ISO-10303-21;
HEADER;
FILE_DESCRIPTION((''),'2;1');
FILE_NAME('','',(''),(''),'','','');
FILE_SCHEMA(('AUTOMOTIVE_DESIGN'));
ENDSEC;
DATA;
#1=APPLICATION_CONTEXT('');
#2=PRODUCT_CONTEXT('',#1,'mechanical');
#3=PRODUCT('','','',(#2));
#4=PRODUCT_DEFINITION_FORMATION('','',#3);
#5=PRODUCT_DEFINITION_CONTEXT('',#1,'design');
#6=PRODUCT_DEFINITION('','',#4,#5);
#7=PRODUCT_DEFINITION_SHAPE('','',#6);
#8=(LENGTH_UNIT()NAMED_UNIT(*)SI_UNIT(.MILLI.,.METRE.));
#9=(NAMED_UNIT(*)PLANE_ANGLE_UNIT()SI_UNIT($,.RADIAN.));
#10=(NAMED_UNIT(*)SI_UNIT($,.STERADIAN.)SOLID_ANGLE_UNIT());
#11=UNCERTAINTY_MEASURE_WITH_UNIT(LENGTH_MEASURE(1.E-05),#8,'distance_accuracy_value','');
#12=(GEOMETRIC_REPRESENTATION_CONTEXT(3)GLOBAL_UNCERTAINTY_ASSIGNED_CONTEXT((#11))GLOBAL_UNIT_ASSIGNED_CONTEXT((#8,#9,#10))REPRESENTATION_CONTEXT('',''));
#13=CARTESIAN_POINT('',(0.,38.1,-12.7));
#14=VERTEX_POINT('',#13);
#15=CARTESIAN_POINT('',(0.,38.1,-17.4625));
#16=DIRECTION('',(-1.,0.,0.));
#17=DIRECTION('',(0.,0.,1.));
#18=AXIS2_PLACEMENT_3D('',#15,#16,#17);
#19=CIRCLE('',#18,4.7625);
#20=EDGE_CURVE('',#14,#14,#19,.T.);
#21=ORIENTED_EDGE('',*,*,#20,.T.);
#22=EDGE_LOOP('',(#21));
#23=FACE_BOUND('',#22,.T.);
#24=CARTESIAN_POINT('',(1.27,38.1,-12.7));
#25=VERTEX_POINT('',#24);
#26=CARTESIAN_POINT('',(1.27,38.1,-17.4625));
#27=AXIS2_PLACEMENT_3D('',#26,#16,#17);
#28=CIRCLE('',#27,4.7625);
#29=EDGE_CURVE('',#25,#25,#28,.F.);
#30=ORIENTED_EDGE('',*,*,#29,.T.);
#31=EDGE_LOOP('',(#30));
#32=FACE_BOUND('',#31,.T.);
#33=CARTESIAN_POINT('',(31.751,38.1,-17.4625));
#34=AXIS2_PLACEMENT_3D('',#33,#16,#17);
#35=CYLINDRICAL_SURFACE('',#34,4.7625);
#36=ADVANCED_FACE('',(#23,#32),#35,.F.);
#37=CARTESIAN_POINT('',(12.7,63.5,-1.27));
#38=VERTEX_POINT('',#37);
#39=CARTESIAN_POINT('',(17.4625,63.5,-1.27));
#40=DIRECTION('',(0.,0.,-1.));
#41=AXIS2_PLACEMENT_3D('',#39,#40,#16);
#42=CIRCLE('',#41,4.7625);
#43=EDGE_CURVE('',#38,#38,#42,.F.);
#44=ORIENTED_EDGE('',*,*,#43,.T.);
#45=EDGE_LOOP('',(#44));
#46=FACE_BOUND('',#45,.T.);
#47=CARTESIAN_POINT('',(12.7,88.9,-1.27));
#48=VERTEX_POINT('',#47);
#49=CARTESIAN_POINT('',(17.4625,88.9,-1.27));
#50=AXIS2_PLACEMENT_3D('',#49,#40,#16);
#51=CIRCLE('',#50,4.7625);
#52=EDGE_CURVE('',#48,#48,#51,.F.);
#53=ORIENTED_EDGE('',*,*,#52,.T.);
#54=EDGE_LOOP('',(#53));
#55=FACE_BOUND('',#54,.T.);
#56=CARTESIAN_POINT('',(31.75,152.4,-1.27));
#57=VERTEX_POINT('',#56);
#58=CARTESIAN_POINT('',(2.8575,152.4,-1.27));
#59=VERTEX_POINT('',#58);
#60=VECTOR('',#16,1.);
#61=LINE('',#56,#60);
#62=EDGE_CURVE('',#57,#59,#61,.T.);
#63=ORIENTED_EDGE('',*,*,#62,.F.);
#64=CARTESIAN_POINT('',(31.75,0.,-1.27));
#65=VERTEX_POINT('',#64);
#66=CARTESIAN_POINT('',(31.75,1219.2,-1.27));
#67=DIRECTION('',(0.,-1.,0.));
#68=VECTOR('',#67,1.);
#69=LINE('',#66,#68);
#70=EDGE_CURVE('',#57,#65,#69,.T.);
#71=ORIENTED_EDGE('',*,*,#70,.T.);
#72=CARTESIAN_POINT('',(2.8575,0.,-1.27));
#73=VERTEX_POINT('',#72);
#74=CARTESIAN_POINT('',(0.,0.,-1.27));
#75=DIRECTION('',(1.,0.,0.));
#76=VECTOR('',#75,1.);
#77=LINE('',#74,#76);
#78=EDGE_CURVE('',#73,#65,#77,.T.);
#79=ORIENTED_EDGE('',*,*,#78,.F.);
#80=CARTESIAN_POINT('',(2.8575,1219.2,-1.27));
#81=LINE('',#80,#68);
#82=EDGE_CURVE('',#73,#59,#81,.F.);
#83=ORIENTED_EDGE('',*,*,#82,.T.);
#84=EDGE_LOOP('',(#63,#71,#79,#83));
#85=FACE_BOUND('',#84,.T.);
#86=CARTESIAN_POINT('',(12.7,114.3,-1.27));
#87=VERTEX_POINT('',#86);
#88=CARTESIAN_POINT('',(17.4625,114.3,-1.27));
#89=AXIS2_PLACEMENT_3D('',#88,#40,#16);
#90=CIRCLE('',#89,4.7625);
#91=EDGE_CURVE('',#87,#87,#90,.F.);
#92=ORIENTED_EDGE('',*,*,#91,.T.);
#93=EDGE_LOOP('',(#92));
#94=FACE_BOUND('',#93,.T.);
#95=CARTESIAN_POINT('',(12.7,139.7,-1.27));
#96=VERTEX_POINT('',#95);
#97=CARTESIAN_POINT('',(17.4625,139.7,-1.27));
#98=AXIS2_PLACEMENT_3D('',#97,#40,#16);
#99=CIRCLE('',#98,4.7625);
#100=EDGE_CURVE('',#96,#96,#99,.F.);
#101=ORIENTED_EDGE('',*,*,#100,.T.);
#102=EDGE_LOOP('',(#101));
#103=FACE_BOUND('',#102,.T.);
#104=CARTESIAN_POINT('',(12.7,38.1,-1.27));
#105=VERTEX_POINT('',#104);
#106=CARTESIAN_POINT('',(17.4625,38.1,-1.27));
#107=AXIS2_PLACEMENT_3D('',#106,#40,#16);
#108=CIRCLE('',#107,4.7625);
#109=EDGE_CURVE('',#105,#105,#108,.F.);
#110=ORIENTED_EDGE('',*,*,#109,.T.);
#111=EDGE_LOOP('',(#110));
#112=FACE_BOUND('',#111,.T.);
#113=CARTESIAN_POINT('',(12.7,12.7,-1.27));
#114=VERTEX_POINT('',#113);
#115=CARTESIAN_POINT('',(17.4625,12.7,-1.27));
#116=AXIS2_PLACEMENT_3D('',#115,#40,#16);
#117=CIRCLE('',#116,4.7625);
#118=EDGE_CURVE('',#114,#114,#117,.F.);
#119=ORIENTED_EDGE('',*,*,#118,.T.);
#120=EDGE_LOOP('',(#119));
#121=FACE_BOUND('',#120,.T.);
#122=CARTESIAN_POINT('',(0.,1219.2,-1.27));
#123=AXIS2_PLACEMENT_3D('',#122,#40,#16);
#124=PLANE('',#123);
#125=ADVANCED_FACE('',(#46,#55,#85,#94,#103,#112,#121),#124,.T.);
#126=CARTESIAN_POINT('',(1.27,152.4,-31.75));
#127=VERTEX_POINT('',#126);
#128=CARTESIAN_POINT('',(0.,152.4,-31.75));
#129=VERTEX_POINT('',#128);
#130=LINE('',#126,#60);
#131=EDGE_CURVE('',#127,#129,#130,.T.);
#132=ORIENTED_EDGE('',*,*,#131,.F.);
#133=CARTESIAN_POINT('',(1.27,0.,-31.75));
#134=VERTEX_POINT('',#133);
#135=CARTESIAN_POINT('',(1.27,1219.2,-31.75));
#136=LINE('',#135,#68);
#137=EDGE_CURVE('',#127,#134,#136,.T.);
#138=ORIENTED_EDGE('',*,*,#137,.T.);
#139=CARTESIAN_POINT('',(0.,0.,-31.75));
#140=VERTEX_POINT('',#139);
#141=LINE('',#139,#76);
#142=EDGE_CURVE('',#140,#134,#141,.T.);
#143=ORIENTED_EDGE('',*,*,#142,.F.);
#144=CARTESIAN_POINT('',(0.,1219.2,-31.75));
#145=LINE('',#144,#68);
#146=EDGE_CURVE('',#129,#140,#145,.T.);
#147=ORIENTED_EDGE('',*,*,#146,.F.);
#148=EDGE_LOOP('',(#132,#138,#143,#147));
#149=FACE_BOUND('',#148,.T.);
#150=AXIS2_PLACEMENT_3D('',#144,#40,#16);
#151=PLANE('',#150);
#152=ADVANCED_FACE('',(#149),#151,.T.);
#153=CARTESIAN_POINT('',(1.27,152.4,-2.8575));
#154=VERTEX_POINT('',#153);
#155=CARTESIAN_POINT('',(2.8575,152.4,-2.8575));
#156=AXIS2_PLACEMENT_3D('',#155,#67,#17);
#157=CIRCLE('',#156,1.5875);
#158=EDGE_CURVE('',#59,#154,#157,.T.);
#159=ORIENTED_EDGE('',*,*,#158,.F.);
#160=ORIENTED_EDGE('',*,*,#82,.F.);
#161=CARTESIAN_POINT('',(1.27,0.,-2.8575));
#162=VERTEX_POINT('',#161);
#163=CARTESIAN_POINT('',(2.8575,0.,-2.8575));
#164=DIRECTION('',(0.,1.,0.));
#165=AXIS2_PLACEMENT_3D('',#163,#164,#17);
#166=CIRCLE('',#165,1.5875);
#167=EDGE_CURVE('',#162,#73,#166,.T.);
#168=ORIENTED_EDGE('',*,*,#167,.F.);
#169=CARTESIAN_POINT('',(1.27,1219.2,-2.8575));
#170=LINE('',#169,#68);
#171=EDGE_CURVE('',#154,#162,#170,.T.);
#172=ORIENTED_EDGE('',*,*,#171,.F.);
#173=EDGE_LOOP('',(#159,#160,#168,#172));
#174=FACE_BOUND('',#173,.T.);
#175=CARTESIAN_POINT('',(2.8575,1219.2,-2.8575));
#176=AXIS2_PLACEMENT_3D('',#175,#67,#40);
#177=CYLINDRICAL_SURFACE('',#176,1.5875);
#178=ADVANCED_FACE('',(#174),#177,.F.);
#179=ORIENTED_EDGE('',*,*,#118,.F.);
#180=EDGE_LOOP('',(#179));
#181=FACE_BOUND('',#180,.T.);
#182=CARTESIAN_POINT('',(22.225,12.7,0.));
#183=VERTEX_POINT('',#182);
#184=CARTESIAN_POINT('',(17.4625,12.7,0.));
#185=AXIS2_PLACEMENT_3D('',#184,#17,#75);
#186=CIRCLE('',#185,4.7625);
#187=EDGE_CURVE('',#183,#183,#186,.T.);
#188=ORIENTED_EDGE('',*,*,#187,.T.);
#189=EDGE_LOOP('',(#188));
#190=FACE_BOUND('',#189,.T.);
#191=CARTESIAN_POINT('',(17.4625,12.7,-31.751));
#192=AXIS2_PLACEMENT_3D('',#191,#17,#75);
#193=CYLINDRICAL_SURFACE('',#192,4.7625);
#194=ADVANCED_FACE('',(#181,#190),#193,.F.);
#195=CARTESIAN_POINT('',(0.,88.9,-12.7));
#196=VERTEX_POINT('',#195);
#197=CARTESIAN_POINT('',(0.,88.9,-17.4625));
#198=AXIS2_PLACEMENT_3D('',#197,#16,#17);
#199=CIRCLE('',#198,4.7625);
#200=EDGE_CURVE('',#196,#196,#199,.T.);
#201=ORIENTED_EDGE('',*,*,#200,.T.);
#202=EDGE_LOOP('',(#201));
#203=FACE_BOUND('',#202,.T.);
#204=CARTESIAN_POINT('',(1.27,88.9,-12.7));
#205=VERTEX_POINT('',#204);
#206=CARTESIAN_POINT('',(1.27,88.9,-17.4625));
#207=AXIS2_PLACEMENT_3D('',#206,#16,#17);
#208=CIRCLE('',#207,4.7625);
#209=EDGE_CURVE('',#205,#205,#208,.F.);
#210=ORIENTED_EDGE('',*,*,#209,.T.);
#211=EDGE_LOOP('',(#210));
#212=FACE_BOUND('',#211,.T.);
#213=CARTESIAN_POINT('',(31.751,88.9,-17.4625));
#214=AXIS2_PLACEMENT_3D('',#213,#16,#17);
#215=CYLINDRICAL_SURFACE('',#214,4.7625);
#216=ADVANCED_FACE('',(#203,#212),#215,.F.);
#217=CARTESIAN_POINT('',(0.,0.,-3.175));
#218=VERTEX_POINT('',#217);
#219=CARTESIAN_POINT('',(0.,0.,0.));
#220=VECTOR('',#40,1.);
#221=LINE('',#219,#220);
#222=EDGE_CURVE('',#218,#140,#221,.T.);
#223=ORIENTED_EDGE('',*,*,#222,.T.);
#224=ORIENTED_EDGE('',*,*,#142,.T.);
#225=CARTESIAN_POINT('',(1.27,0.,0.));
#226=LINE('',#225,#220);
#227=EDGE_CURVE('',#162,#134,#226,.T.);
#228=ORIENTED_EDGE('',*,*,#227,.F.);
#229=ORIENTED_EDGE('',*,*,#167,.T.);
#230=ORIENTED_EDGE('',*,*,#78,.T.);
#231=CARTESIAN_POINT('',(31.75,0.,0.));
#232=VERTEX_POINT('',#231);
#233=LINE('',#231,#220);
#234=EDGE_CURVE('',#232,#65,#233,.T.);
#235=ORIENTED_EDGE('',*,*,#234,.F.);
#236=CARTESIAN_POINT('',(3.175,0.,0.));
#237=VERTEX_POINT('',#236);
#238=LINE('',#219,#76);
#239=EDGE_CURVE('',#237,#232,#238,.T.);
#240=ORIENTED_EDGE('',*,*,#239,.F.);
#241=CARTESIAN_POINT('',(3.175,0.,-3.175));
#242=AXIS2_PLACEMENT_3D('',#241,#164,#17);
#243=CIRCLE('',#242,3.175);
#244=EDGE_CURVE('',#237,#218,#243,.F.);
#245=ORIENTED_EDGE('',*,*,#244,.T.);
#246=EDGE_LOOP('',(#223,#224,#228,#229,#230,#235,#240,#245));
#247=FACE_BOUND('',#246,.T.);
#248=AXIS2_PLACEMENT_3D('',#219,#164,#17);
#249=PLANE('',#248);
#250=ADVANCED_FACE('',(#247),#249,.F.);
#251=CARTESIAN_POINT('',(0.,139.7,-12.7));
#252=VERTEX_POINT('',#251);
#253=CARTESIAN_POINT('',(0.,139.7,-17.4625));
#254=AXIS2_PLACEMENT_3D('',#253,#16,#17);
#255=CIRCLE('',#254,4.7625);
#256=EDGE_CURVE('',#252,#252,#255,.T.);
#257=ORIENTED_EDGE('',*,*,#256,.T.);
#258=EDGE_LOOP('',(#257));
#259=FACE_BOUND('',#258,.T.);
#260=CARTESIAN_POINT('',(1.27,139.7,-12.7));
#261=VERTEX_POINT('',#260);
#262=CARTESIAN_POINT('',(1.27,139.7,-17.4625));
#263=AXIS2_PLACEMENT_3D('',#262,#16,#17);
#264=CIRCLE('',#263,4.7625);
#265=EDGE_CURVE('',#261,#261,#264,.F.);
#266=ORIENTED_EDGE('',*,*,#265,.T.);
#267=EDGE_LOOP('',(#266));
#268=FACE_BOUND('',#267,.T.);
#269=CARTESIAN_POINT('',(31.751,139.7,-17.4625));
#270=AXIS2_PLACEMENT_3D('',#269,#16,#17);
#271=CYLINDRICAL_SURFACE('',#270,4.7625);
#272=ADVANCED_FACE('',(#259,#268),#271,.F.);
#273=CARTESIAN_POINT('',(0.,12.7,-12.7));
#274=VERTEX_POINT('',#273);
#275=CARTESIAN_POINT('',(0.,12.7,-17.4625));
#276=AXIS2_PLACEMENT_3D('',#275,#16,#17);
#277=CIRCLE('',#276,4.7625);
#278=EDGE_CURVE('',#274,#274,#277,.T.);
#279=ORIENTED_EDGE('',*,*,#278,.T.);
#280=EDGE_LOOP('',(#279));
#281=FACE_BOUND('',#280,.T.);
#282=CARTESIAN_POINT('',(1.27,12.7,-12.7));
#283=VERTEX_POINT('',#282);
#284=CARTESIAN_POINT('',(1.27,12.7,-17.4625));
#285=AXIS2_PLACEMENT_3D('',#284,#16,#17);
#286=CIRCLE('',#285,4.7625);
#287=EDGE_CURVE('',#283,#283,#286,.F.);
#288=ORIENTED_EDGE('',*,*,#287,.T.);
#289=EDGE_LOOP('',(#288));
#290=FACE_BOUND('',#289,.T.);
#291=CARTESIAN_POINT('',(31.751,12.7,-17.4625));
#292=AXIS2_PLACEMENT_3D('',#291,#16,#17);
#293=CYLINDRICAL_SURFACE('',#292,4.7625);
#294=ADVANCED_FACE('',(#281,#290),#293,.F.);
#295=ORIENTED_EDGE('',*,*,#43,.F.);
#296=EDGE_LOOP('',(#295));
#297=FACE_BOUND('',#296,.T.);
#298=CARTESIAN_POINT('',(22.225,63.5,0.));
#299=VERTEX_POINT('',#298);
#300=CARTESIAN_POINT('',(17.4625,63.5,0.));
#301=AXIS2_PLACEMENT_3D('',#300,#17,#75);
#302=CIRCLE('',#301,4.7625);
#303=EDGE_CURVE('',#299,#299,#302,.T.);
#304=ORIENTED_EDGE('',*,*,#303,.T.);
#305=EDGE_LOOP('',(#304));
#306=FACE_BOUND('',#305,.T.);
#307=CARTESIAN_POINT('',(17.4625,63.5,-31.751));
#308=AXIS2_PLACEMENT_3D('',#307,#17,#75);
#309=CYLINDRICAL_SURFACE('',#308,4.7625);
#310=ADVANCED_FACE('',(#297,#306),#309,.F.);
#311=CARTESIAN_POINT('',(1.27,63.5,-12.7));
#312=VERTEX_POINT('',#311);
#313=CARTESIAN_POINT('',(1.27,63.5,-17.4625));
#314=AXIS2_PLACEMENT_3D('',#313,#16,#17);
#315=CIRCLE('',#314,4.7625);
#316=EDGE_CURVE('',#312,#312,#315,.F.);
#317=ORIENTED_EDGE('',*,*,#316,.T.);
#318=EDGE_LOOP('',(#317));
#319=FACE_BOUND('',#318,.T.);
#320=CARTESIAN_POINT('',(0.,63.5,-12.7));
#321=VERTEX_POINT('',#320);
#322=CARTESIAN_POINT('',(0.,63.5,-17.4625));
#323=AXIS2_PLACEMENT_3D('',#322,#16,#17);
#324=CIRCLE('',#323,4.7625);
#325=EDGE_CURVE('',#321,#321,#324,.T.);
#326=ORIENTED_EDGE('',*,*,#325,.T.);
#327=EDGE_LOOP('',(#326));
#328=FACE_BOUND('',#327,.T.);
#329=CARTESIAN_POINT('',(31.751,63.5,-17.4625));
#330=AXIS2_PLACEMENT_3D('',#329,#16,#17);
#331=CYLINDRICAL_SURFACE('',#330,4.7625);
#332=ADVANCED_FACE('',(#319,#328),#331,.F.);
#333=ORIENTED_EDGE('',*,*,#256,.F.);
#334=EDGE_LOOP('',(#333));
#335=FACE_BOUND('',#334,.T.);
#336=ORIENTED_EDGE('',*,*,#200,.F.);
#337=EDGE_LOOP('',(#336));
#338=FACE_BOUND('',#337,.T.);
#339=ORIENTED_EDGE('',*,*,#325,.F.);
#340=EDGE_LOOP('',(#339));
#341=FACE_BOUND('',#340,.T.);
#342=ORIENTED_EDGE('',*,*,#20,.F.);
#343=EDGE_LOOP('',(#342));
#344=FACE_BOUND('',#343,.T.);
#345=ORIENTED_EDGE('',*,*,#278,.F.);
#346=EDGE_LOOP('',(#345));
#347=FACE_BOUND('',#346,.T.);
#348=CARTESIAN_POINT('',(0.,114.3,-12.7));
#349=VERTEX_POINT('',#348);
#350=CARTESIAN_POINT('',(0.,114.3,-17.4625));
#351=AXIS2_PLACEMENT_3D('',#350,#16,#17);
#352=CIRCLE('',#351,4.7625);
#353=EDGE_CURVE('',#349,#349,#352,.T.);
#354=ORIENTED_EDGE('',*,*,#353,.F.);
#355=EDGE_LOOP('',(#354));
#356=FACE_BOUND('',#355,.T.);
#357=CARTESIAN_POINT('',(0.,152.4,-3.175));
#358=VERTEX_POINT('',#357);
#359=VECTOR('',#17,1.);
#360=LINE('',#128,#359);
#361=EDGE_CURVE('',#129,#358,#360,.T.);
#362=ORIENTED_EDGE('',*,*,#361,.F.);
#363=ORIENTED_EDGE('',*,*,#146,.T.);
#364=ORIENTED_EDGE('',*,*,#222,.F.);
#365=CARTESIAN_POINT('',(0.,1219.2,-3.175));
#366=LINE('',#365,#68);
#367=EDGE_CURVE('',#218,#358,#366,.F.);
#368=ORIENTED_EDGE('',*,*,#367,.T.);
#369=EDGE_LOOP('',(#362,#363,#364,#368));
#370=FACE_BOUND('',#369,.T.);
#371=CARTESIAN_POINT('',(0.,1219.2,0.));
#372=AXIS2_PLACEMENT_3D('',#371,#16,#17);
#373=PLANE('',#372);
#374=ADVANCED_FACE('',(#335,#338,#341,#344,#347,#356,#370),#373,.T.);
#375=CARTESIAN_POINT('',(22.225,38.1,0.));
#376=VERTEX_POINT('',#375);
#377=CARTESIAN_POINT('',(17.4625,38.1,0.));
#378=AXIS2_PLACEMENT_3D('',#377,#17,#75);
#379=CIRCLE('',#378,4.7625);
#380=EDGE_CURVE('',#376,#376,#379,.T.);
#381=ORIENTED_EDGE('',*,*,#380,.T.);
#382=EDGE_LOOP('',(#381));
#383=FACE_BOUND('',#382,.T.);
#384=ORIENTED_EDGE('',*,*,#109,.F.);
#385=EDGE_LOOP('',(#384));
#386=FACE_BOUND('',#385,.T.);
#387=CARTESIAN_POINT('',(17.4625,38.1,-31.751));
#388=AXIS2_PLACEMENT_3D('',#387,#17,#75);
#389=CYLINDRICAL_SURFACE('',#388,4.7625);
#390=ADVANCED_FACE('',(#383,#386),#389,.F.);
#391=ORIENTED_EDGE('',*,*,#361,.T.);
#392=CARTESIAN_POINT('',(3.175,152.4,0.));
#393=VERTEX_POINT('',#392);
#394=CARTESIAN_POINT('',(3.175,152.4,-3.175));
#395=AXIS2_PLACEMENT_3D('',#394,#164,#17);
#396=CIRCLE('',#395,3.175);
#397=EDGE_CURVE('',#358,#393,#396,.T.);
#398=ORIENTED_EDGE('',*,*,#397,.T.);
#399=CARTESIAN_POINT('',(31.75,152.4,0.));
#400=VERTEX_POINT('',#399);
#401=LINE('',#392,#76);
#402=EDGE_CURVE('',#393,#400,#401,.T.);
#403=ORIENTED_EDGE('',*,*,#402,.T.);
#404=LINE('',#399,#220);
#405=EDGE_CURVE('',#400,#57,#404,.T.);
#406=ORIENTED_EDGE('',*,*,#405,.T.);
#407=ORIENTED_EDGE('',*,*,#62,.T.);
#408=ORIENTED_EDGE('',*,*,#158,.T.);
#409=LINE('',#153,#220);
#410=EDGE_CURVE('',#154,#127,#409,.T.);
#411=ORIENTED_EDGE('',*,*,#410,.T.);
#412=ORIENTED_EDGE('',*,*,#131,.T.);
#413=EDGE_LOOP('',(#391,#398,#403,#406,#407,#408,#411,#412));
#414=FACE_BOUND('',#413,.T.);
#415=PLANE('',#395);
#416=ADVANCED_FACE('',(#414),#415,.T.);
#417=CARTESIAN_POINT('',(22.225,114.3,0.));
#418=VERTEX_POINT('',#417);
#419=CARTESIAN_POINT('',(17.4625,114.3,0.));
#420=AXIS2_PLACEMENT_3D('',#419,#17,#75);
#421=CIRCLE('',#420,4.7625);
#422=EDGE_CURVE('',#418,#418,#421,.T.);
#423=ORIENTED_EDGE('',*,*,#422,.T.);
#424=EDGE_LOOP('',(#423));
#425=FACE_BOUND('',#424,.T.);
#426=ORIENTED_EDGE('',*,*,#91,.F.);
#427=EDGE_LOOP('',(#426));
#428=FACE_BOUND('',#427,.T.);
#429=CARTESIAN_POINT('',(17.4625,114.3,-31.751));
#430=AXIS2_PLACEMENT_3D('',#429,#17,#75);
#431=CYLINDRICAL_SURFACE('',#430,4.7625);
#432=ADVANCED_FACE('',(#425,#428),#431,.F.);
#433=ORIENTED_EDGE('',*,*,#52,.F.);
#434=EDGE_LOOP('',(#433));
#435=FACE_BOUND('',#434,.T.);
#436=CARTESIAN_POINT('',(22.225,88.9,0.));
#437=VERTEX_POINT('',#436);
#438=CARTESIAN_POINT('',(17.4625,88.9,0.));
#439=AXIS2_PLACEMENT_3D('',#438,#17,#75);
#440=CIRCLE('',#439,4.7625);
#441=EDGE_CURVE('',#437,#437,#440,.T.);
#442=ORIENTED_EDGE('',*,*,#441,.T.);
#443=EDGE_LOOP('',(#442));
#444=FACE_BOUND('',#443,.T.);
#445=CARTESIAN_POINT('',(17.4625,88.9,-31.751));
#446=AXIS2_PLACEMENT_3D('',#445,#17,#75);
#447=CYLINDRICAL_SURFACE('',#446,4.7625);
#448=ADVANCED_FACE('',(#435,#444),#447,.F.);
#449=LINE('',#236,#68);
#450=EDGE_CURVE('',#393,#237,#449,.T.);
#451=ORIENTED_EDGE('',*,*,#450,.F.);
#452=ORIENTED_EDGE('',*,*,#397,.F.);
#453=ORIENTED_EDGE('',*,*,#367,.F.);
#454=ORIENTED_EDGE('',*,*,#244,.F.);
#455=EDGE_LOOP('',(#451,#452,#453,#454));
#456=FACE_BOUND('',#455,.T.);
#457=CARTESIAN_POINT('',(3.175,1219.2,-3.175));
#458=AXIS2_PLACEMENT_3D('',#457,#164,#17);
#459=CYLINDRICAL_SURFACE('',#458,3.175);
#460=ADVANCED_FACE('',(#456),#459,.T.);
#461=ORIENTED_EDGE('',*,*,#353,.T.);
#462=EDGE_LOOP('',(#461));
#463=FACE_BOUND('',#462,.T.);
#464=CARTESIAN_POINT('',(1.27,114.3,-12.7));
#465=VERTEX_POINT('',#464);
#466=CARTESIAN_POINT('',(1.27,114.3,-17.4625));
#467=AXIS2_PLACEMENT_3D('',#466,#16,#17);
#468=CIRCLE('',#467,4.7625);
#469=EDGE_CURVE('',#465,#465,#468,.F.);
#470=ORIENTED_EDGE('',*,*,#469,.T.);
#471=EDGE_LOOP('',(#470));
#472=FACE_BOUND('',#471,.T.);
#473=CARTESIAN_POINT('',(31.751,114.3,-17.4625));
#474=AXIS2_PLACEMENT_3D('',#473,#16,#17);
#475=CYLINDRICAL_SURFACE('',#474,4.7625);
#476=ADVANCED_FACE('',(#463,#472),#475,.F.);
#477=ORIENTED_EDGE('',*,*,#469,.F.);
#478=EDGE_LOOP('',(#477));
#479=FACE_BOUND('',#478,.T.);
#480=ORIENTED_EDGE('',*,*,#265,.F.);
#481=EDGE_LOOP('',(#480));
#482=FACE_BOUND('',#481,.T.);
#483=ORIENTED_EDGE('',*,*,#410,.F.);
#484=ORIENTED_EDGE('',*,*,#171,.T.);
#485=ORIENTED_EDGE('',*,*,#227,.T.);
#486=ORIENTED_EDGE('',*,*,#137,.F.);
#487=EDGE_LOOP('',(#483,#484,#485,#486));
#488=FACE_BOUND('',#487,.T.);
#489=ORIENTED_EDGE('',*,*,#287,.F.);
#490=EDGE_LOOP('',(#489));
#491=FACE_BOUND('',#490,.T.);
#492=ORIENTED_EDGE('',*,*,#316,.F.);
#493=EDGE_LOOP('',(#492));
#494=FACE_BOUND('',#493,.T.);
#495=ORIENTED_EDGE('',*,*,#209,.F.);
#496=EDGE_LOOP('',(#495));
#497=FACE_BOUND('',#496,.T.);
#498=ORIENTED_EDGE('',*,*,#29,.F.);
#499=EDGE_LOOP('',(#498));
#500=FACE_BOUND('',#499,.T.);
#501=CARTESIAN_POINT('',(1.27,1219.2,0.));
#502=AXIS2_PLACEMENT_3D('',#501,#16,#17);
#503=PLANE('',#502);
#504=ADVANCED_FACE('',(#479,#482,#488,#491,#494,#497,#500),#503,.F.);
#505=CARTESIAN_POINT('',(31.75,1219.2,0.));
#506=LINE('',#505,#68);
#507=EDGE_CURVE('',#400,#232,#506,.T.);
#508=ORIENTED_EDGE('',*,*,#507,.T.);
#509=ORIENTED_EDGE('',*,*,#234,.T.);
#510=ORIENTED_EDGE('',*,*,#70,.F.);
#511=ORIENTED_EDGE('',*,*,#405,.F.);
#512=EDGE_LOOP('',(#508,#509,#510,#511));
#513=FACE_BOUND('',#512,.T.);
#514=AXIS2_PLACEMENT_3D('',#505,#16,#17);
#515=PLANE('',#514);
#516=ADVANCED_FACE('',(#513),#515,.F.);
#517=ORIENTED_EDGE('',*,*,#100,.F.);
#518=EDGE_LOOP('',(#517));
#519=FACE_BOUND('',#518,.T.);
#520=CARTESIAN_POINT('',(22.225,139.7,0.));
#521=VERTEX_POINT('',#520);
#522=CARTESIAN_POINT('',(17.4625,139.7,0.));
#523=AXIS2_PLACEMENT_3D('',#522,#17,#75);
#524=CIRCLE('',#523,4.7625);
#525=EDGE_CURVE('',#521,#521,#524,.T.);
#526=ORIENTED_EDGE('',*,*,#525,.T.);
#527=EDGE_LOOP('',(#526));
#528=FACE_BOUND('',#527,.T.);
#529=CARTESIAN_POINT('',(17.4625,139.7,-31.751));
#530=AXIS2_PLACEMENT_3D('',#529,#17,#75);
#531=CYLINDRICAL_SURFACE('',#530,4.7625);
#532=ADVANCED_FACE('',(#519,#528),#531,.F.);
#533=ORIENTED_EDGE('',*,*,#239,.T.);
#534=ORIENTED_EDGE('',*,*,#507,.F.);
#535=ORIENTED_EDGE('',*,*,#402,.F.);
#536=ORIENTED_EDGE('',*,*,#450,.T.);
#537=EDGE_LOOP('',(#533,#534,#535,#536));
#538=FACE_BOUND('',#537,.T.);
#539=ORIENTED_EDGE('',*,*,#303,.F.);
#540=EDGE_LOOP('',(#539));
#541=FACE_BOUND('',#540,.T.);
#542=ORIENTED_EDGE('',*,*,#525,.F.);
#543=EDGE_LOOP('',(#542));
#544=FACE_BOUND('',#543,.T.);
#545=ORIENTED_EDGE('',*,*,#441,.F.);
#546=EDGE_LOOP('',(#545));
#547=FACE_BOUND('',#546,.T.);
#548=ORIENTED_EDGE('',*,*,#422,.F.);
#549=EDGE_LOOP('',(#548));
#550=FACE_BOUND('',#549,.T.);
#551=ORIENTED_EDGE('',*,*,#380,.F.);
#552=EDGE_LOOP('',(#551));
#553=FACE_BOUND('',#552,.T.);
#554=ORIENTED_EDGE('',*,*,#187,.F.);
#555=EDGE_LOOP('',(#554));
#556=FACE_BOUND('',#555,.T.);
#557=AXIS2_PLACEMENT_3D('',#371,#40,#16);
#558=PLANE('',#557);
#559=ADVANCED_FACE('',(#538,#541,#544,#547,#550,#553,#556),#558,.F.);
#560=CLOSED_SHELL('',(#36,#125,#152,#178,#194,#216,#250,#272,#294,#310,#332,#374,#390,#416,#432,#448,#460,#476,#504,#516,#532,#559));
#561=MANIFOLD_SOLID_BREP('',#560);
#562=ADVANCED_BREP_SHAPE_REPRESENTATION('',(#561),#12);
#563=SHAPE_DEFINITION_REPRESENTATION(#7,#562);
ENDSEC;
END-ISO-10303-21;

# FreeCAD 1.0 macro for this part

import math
import FreeCAD as App
import Part
import Sketcher
from FreeCAD import Vector
Q = App.Units.Quantity


def edges_at(feature, points):
    """Names of the edges that pass closest to the given points."""
    edges = feature.Shape.Edges
    near = lambda p: min(range(len(edges)), key=lambda i: edges[i].distToShape(Part.Vertex(*p))[0])
    return sorted({f"Edge{near(p) + 1}" for p in points})


def add_polygon(sketch, points):
    """Adds a closed chain of lines whose ends are joined by coincident constraints."""
    first, n = sketch.GeometryCount, len(points)
    for a, b in zip(points, points[1:] + points[:1]):
        sketch.addGeometry(Part.LineSegment(App.Vector(*a, 0), App.Vector(*b, 0)), False)
    for i in range(n):
        sketch.addConstraint(Sketcher.Constraint("Coincident", first + i, 2, first + (i + 1) % n, 1))

doc = App.newDocument("Part")
body = doc.addObject("PartDesign::Body", "Body")

# Sketch on XZ plane
sketch1 = body.newObject("Sketcher::SketchObject", "Sketch")
sketch1.AttachmentSupport = (doc.getObject("XZ_Plane"), [""])
sketch1.MapMode = "FlatFace"
add_polygon(sketch1, [(1.3, -1.3), (1.3, -31.8), (0, -31.8), (0, 0), (31.8, 0), (31.8, -1.3)])  # lines 0-5
sketch1.addConstraint([
    Sketcher.Constraint("Vertical", 0),
    Sketcher.Constraint("Horizontal", 1),
    Sketcher.Constraint("Vertical", 2),
    Sketcher.Constraint("Horizontal", 3),
    Sketcher.Constraint("Vertical", 4),
    Sketcher.Constraint("Horizontal", 5),
    Sketcher.Constraint("Coincident", 2, 2, -1, 1),
    Sketcher.Constraint("Equal", 5, 0),
    Sketcher.Constraint("Equal", 3, 2),
    Sketcher.Constraint("DistanceX", 5, 2, 5, 1, Q("1.2 in")),
    Sketcher.Constraint("DistanceX", 1, 2, 1, 1, Q("0.05 in")),
])
pad1 = body.newObject("PartDesign::Pad", "Pad")
pad1.Profile = sketch1
pad1.Length = Q("48 in")
pad1.Reversed = True

# Sketch on YZ plane
sketch2 = body.newObject("Sketcher::SketchObject", "Sketch001")
sketch2.AttachmentSupport = (doc.getObject("YZ_Plane"), [""])
sketch2.MapMode = "FlatFace"
sketch2.addGeometry([
    Part.Circle(Vector(12.7, -17.5, 0), Vector(0, 0, 1), 4.8),  # 0
    Part.Circle(Vector(38.1, -17.5, 0), Vector(0, 0, 1), 4.8),  # 1
    Part.Circle(Vector(63.5, -17.5, 0), Vector(0, 0, 1), 4.8),  # 2
    Part.Circle(Vector(88.9, -17.5, 0), Vector(0, 0, 1), 4.8),  # 3
    Part.Circle(Vector(114.3, -17.5, 0), Vector(0, 0, 1), 4.8),  # 4
    Part.Circle(Vector(139.7, -17.5, 0), Vector(0, 0, 1), 4.8),  # 5
    Part.Circle(Vector(165.1, -17.5, 0), Vector(0, 0, 1), 4.8),  # 6
    Part.Circle(Vector(190.5, -17.5, 0), Vector(0, 0, 1), 4.8),  # 7
    Part.Circle(Vector(215.9, -17.5, 0), Vector(0, 0, 1), 4.8),  # 8
    Part.Circle(Vector(241.3, -17.5, 0), Vector(0, 0, 1), 4.8),  # 9
    Part.Circle(Vector(266.7, -17.5, 0), Vector(0, 0, 1), 4.8),  # 10
    Part.Circle(Vector(292.1, -17.5, 0), Vector(0, 0, 1), 4.8),  # 11
    Part.Circle(Vector(317.5, -17.5, 0), Vector(0, 0, 1), 4.8),  # 12
    Part.Circle(Vector(342.9, -17.5, 0), Vector(0, 0, 1), 4.8),  # 13
    Part.Circle(Vector(368.3, -17.5, 0), Vector(0, 0, 1), 4.8),  # 14
    Part.Circle(Vector(393.7, -17.5, 0), Vector(0, 0, 1), 4.8),  # 15
    Part.Circle(Vector(419.1, -17.5, 0), Vector(0, 0, 1), 4.8),  # 16
    Part.Circle(Vector(444.5, -17.5, 0), Vector(0, 0, 1), 4.8),  # 17
    Part.Circle(Vector(469.9, -17.5, 0), Vector(0, 0, 1), 4.8),  # 18
    Part.Circle(Vector(495.3, -17.5, 0), Vector(0, 0, 1), 4.8),  # 19
    Part.Circle(Vector(520.7, -17.5, 0), Vector(0, 0, 1), 4.8),  # 20
    Part.Circle(Vector(546.1, -17.5, 0), Vector(0, 0, 1), 4.8),  # 21
    Part.Circle(Vector(571.5, -17.5, 0), Vector(0, 0, 1), 4.8),  # 22
    Part.Circle(Vector(596.9, -17.5, 0), Vector(0, 0, 1), 4.8),  # 23
    Part.Circle(Vector(622.3, -17.5, 0), Vector(0, 0, 1), 4.8),  # 24
    Part.Circle(Vector(647.7, -17.5, 0), Vector(0, 0, 1), 4.8),  # 25
    Part.Circle(Vector(673.1, -17.5, 0), Vector(0, 0, 1), 4.8),  # 26
    Part.Circle(Vector(698.5, -17.5, 0), Vector(0, 0, 1), 4.8),  # 27
    Part.Circle(Vector(723.9, -17.5, 0), Vector(0, 0, 1), 4.8),  # 28
    Part.Circle(Vector(749.3, -17.5, 0), Vector(0, 0, 1), 4.8),  # 29
    Part.Circle(Vector(774.7, -17.5, 0), Vector(0, 0, 1), 4.8),  # 30
    Part.Circle(Vector(800.1, -17.5, 0), Vector(0, 0, 1), 4.8),  # 31
    Part.Circle(Vector(825.5, -17.5, 0), Vector(0, 0, 1), 4.8),  # 32
    Part.Circle(Vector(850.9, -17.5, 0), Vector(0, 0, 1), 4.8),  # 33
    Part.Circle(Vector(876.3, -17.5, 0), Vector(0, 0, 1), 4.8),  # 34
    Part.Circle(Vector(901.7, -17.5, 0), Vector(0, 0, 1), 4.8),  # 35
    Part.Circle(Vector(927.1, -17.5, 0), Vector(0, 0, 1), 4.8),  # 36
    Part.Circle(Vector(952.5, -17.5, 0), Vector(0, 0, 1), 4.8),  # 37
    Part.Circle(Vector(977.9, -17.5, 0), Vector(0, 0, 1), 4.8),  # 38
    Part.Circle(Vector(1003.3, -17.5, 0), Vector(0, 0, 1), 4.8),  # 39
    Part.Circle(Vector(1028.7, -17.5, 0), Vector(0, 0, 1), 4.8),  # 40
    Part.Circle(Vector(1054.1, -17.5, 0), Vector(0, 0, 1), 4.8),  # 41
    Part.Circle(Vector(1079.5, -17.5, 0), Vector(0, 0, 1), 4.8),  # 42
    Part.Circle(Vector(1104.9, -17.5, 0), Vector(0, 0, 1), 4.8),  # 43
    Part.Circle(Vector(1130.3, -17.5, 0), Vector(0, 0, 1), 4.8),  # 44
    Part.Circle(Vector(1155.7, -17.5, 0), Vector(0, 0, 1), 4.8),  # 45
    Part.Circle(Vector(1181.1, -17.5, 0), Vector(0, 0, 1), 4.8),  # 46
    Part.Circle(Vector(1206.5, -17.5, 0), Vector(0, 0, 1), 4.8),  # 47
], False)
sketch2.addConstraint([
    Sketcher.Constraint("Equal", 0, 1),
    Sketcher.Constraint("Equal", 1, 2),
    Sketcher.Constraint("Equal", 2, 3),
    Sketcher.Constraint("Equal", 3, 4),
    Sketcher.Constraint("Equal", 4, 5),
    Sketcher.Constraint("Equal", 5, 6),
    Sketcher.Constraint("Equal", 6, 7),
    Sketcher.Constraint("Equal", 7, 8),
    Sketcher.Constraint("Equal", 8, 9),
    Sketcher.Constraint("Equal", 9, 10),
    Sketcher.Constraint("Equal", 10, 11),
    Sketcher.Constraint("Equal", 11, 12),
    Sketcher.Constraint("Equal", 12, 13),
    Sketcher.Constraint("Equal", 13, 14),
    Sketcher.Constraint("Equal", 14, 15),
    Sketcher.Constraint("Equal", 15, 16),
    Sketcher.Constraint("Equal", 16, 17),
    Sketcher.Constraint("Equal", 17, 18),
    Sketcher.Constraint("Equal", 18, 19),
    Sketcher.Constraint("Equal", 19, 20),
    Sketcher.Constraint("Equal", 20, 21),
    Sketcher.Constraint("Equal", 21, 22),
    Sketcher.Constraint("Equal", 22, 23),
    Sketcher.Constraint("Equal", 23, 24),
    Sketcher.Constraint("Equal", 24, 25),
    Sketcher.Constraint("Equal", 25, 26),
    Sketcher.Constraint("Equal", 26, 27),
    Sketcher.Constraint("Equal", 27, 28),
    Sketcher.Constraint("Equal", 28, 29),
    Sketcher.Constraint("Equal", 29, 30),
    Sketcher.Constraint("Equal", 30, 31),
    Sketcher.Constraint("Equal", 31, 32),
    Sketcher.Constraint("Equal", 32, 33),
    Sketcher.Constraint("Equal", 33, 34),
    Sketcher.Constraint("Equal", 34, 35),
    Sketcher.Constraint("Equal", 35, 36),
    Sketcher.Constraint("Equal", 36, 37),
    Sketcher.Constraint("Equal", 37, 38),
    Sketcher.Constraint("Equal", 38, 39),
    Sketcher.Constraint("Equal", 39, 40),
    Sketcher.Constraint("Equal", 40, 41),
    Sketcher.Constraint("Equal", 41, 42),
    Sketcher.Constraint("Equal", 42, 43),
    Sketcher.Constraint("Equal", 43, 44),
    Sketcher.Constraint("Equal", 44, 45),
    Sketcher.Constraint("Equal", 45, 46),
    Sketcher.Constraint("Equal", 46, 47),
    Sketcher.Constraint("Horizontal", 0, 3, 1, 3),
    Sketcher.Constraint("Horizontal", 1, 3, 2, 3),
    Sketcher.Constraint("Horizontal", 2, 3, 3, 3),
    Sketcher.Constraint("Horizontal", 3, 3, 4, 3),
    Sketcher.Constraint("Horizontal", 4, 3, 5, 3),
    Sketcher.Constraint("Horizontal", 5, 3, 6, 3),
    Sketcher.Constraint("Horizontal", 6, 3, 7, 3),
    Sketcher.Constraint("Horizontal", 7, 3, 8, 3),
    Sketcher.Constraint("Horizontal", 8, 3, 9, 3),
    Sketcher.Constraint("Horizontal", 9, 3, 10, 3),
    Sketcher.Constraint("Horizontal", 10, 3, 11, 3),
    Sketcher.Constraint("Horizontal", 11, 3, 12, 3),
    Sketcher.Constraint("Horizontal", 12, 3, 13, 3),
    Sketcher.Constraint("Horizontal", 13, 3, 14, 3),
    Sketcher.Constraint("Horizontal", 14, 3, 15, 3),
    Sketcher.Constraint("Horizontal", 15, 3, 16, 3),
    Sketcher.Constraint("Horizontal", 16, 3, 17, 3),
    Sketcher.Constraint("Horizontal", 17, 3, 18, 3),
    Sketcher.Constraint("Horizontal", 18, 3, 19, 3),
    Sketcher.Constraint("Horizontal", 19, 3, 20, 3),
    Sketcher.Constraint("Horizontal", 20, 3, 21, 3),
    Sketcher.Constraint("Horizontal", 21, 3, 22, 3),
    Sketcher.Constraint("Horizontal", 22, 3, 23, 3),
    Sketcher.Constraint("Horizontal", 23, 3, 24, 3),
    Sketcher.Constraint("Horizontal", 24, 3, 25, 3),
    Sketcher.Constraint("Horizontal", 25, 3, 26, 3),
    Sketcher.Constraint("Horizontal", 26, 3, 27, 3),
    Sketcher.Constraint("Horizontal", 27, 3, 28, 3),
    Sketcher.Constraint("Horizontal", 28, 3, 29, 3),
    Sketcher.Constraint("Horizontal", 29, 3, 30, 3),
    Sketcher.Constraint("Horizontal", 30, 3, 31, 3),
    Sketcher.Constraint("Horizontal", 31, 3, 32, 3),
    Sketcher.Constraint("Horizontal", 32, 3, 33, 3),
    Sketcher.Constraint("Horizontal", 33, 3, 34, 3),
    Sketcher.Constraint("Horizontal", 34, 3, 35, 3),
    Sketcher.Constraint("Horizontal", 35, 3, 36, 3),
    Sketcher.Constraint("Horizontal", 36, 3, 37, 3),
    Sketcher.Constraint("Horizontal", 37, 3, 38, 3),
    Sketcher.Constraint("Horizontal", 38, 3, 39, 3),
    Sketcher.Constraint("Horizontal", 39, 3, 40, 3),
    Sketcher.Constraint("Horizontal", 40, 3, 41, 3),
    Sketcher.Constraint("Horizontal", 41, 3, 42, 3),
    Sketcher.Constraint("Horizontal", 42, 3, 43, 3),
    Sketcher.Constraint("Horizontal", 43, 3, 44, 3),
    Sketcher.Constraint("Horizontal", 44, 3, 45, 3),
    Sketcher.Constraint("Horizontal", 45, 3, 46, 3),
    Sketcher.Constraint("Horizontal", 46, 3, 47, 3),
    Sketcher.Constraint("Diameter", 0, Q("0.375 in")),
    Sketcher.Constraint("DistanceX", 0, 3, 1, 3, Q("1 in")),
    Sketcher.Constraint("DistanceX", 1, 3, 2, 3, Q("1 in")),
    Sketcher.Constraint("DistanceX", 2, 3, 3, 3, Q("1 in")),
    Sketcher.Constraint("DistanceX", 3, 3, 4, 3, Q("1 in")),
    Sketcher.Constraint("DistanceX", 4, 3, 5, 3, Q("1 in")),
    Sketcher.Constraint("DistanceX", 5, 3, 6, 3, Q("1 in")),
    Sketcher.Constraint("DistanceX", 6, 3, 7, 3, Q("1 in")),
    Sketcher.Constraint("DistanceX", 7, 3, 8, 3, Q("1 in")),
    Sketcher.Constraint("DistanceX", 8, 3, 9, 3, Q("1 in")),
    Sketcher.Constraint("DistanceX", 9, 3, 10, 3, Q("1 in")),
    Sketcher.Constraint("DistanceX", 10, 3, 11, 3, Q("1 in")),
    Sketcher.Constraint("DistanceX", 11, 3, 12, 3, Q("1 in")),
    Sketcher.Constraint("DistanceX", 12, 3, 13, 3, Q("1 in")),
    Sketcher.Constraint("DistanceX", 13, 3, 14, 3, Q("1 in")),
    Sketcher.Constraint("DistanceX", 14, 3, 15, 3, Q("1 in")),
    Sketcher.Constraint("DistanceX", 15, 3, 16, 3, Q("1 in")),
    Sketcher.Constraint("DistanceX", 16, 3, 17, 3, Q("1 in")),
    Sketcher.Constraint("DistanceX", 17, 3, 18, 3, Q("1 in")),
    Sketcher.Constraint("DistanceX", 18, 3, 19, 3, Q("1 in")),
    Sketcher.Constraint("DistanceX", 19, 3, 20, 3, Q("1 in")),
    Sketcher.Constraint("DistanceX", 20, 3, 21, 3, Q("1 in")),
    Sketcher.Constraint("DistanceX", 21, 3, 22, 3, Q("1 in")),
    Sketcher.Constraint("DistanceX", 22, 3, 23, 3, Q("1 in")),
    Sketcher.Constraint("DistanceX", 23, 3, 24, 3, Q("1 in")),
    Sketcher.Constraint("DistanceX", 24, 3, 25, 3, Q("1 in")),
    Sketcher.Constraint("DistanceX", 25, 3, 26, 3, Q("1 in")),
    Sketcher.Constraint("DistanceX", 26, 3, 27, 3, Q("1 in")),
    Sketcher.Constraint("DistanceX", 27, 3, 28, 3, Q("1 in")),
    Sketcher.Constraint("DistanceX", 28, 3, 29, 3, Q("1 in")),
    Sketcher.Constraint("DistanceX", 29, 3, 30, 3, Q("1 in")),
    Sketcher.Constraint("DistanceX", 30, 3, 31, 3, Q("1 in")),
    Sketcher.Constraint("DistanceX", 31, 3, 32, 3, Q("1 in")),
    Sketcher.Constraint("DistanceX", 32, 3, 33, 3, Q("1 in")),
    Sketcher.Constraint("DistanceX", 33, 3, 34, 3, Q("1 in")),
    Sketcher.Constraint("DistanceX", 34, 3, 35, 3, Q("1 in")),
    Sketcher.Constraint("DistanceX", 35, 3, 36, 3, Q("1 in")),
    Sketcher.Constraint("DistanceX", 36, 3, 37, 3, Q("1 in")),
    Sketcher.Constraint("DistanceX", 37, 3, 38, 3, Q("1 in")),
    Sketcher.Constraint("DistanceX", 38, 3, 39, 3, Q("1 in")),
    Sketcher.Constraint("DistanceX", 39, 3, 40, 3, Q("1 in")),
    Sketcher.Constraint("DistanceX", 40, 3, 41, 3, Q("1 in")),
    Sketcher.Constraint("DistanceX", 41, 3, 42, 3, Q("1 in")),
    Sketcher.Constraint("DistanceX", 42, 3, 43, 3, Q("1 in")),
    Sketcher.Constraint("DistanceX", 43, 3, 44, 3, Q("1 in")),
    Sketcher.Constraint("DistanceX", 44, 3, 45, 3, Q("1 in")),
    Sketcher.Constraint("DistanceX", 45, 3, 46, 3, Q("1 in")),
    Sketcher.Constraint("DistanceX", 46, 3, 47, 3, Q("1 in")),
    Sketcher.Constraint("DistanceX", -1, 1, 0, 3, Q("0.5 in")),
    Sketcher.Constraint("DistanceY", 0, 3, -1, 1, Q("0.6875 in")),
])
pocket1 = body.newObject("PartDesign::Pocket", "Pocket")
pocket1.Profile = sketch2
pocket1.Length = Q("0.05 in")
pocket1.Reversed = True

# Sketch on XY plane
sketch3 = body.newObject("Sketcher::SketchObject", "Sketch002")
sketch3.AttachmentSupport = (doc.getObject("XY_Plane"), [""])
sketch3.MapMode = "FlatFace"
sketch3.addGeometry([
    Part.Circle(Vector(17.5, 1206.5, 0), Vector(0, 0, 1), 4.8),  # 0
    Part.Circle(Vector(17.5, 1181.1, 0), Vector(0, 0, 1), 4.8),  # 1
    Part.Circle(Vector(17.5, 1155.7, 0), Vector(0, 0, 1), 4.8),  # 2
    Part.Circle(Vector(17.5, 1130.3, 0), Vector(0, 0, 1), 4.8),  # 3
    Part.Circle(Vector(17.5, 1104.9, 0), Vector(0, 0, 1), 4.8),  # 4
    Part.Circle(Vector(17.5, 1079.5, 0), Vector(0, 0, 1), 4.8),  # 5
    Part.Circle(Vector(17.5, 1054.1, 0), Vector(0, 0, 1), 4.8),  # 6
    Part.Circle(Vector(17.5, 1028.7, 0), Vector(0, 0, 1), 4.8),  # 7
    Part.Circle(Vector(17.5, 1003.3, 0), Vector(0, 0, 1), 4.8),  # 8
    Part.Circle(Vector(17.5, 977.9, 0), Vector(0, 0, 1), 4.8),  # 9
    Part.Circle(Vector(17.5, 952.5, 0), Vector(0, 0, 1), 4.8),  # 10
    Part.Circle(Vector(17.5, 927.1, 0), Vector(0, 0, 1), 4.8),  # 11
    Part.Circle(Vector(17.5, 901.7, 0), Vector(0, 0, 1), 4.8),  # 12
    Part.Circle(Vector(17.5, 876.3, 0), Vector(0, 0, 1), 4.8),  # 13
    Part.Circle(Vector(17.5, 850.9, 0), Vector(0, 0, 1), 4.8),  # 14
    Part.Circle(Vector(17.5, 825.5, 0), Vector(0, 0, 1), 4.8),  # 15
    Part.Circle(Vector(17.5, 800.1, 0), Vector(0, 0, 1), 4.8),  # 16
    Part.Circle(Vector(17.5, 774.7, 0), Vector(0, 0, 1), 4.8),  # 17
    Part.Circle(Vector(17.5, 749.3, 0), Vector(0, 0, 1), 4.8),  # 18
    Part.Circle(Vector(17.5, 723.9, 0), Vector(0, 0, 1), 4.8),  # 19
    Part.Circle(Vector(17.5, 698.5, 0), Vector(0, 0, 1), 4.8),  # 20
    Part.Circle(Vector(17.5, 673.1, 0), Vector(0, 0, 1), 4.8),  # 21
    Part.Circle(Vector(17.5, 647.7, 0), Vector(0, 0, 1), 4.8),  # 22
    Part.Circle(Vector(17.5, 622.3, 0), Vector(0, 0, 1), 4.8),  # 23
    Part.Circle(Vector(17.5, 596.9, 0), Vector(0, 0, 1), 4.8),  # 24
    Part.Circle(Vector(17.5, 571.5, 0), Vector(0, 0, 1), 4.8),  # 25
    Part.Circle(Vector(17.5, 546.1, 0), Vector(0, 0, 1), 4.8),  # 26
    Part.Circle(Vector(17.5, 520.7, 0), Vector(0, 0, 1), 4.8),  # 27
    Part.Circle(Vector(17.5, 495.3, 0), Vector(0, 0, 1), 4.8),  # 28
    Part.Circle(Vector(17.5, 469.9, 0), Vector(0, 0, 1), 4.8),  # 29
    Part.Circle(Vector(17.5, 444.5, 0), Vector(0, 0, 1), 4.8),  # 30
    Part.Circle(Vector(17.5, 419.1, 0), Vector(0, 0, 1), 4.8),  # 31
    Part.Circle(Vector(17.5, 393.7, 0), Vector(0, 0, 1), 4.8),  # 32
    Part.Circle(Vector(17.5, 368.3, 0), Vector(0, 0, 1), 4.8),  # 33
    Part.Circle(Vector(17.5, 342.9, 0), Vector(0, 0, 1), 4.8),  # 34
    Part.Circle(Vector(17.5, 317.5, 0), Vector(0, 0, 1), 4.8),  # 35
    Part.Circle(Vector(17.5, 292.1, 0), Vector(0, 0, 1), 4.8),  # 36
    Part.Circle(Vector(17.5, 266.7, 0), Vector(0, 0, 1), 4.8),  # 37
    Part.Circle(Vector(17.5, 241.3, 0), Vector(0, 0, 1), 4.8),  # 38
    Part.Circle(Vector(17.5, 215.9, 0), Vector(0, 0, 1), 4.8),  # 39
    Part.Circle(Vector(17.5, 190.5, 0), Vector(0, 0, 1), 4.8),  # 40
    Part.Circle(Vector(17.5, 165.1, 0), Vector(0, 0, 1), 4.8),  # 41
    Part.Circle(Vector(17.5, 139.7, 0), Vector(0, 0, 1), 4.8),  # 42
    Part.Circle(Vector(17.5, 114.3, 0), Vector(0, 0, 1), 4.8),  # 43
    Part.Circle(Vector(17.5, 88.9, 0), Vector(0, 0, 1), 4.8),  # 44
    Part.Circle(Vector(17.5, 63.5, 0), Vector(0, 0, 1), 4.8),  # 45
    Part.Circle(Vector(17.5, 38.1, 0), Vector(0, 0, 1), 4.8),  # 46
    Part.Circle(Vector(17.5, 12.7, 0), Vector(0, 0, 1), 4.8),  # 47
], False)
sketch3.addConstraint([
    Sketcher.Constraint("Equal", 0, 1),
    Sketcher.Constraint("Equal", 1, 2),
    Sketcher.Constraint("Equal", 2, 3),
    Sketcher.Constraint("Equal", 3, 4),
    Sketcher.Constraint("Equal", 4, 5),
    Sketcher.Constraint("Equal", 5, 6),
    Sketcher.Constraint("Equal", 6, 7),
    Sketcher.Constraint("Equal", 7, 8),
    Sketcher.Constraint("Equal", 8, 9),
    Sketcher.Constraint("Equal", 9, 10),
    Sketcher.Constraint("Equal", 10, 11),
    Sketcher.Constraint("Equal", 11, 12),
    Sketcher.Constraint("Equal", 12, 13),
    Sketcher.Constraint("Equal", 13, 14),
    Sketcher.Constraint("Equal", 14, 15),
    Sketcher.Constraint("Equal", 15, 16),
    Sketcher.Constraint("Equal", 16, 17),
    Sketcher.Constraint("Equal", 17, 18),
    Sketcher.Constraint("Equal", 18, 19),
    Sketcher.Constraint("Equal", 19, 20),
    Sketcher.Constraint("Equal", 20, 21),
    Sketcher.Constraint("Equal", 21, 22),
    Sketcher.Constraint("Equal", 22, 23),
    Sketcher.Constraint("Equal", 23, 24),
    Sketcher.Constraint("Equal", 24, 25),
    Sketcher.Constraint("Equal", 25, 26),
    Sketcher.Constraint("Equal", 26, 27),
    Sketcher.Constraint("Equal", 27, 28),
    Sketcher.Constraint("Equal", 28, 29),
    Sketcher.Constraint("Equal", 29, 30),
    Sketcher.Constraint("Equal", 30, 31),
    Sketcher.Constraint("Equal", 31, 32),
    Sketcher.Constraint("Equal", 32, 33),
    Sketcher.Constraint("Equal", 33, 34),
    Sketcher.Constraint("Equal", 34, 35),
    Sketcher.Constraint("Equal", 35, 36),
    Sketcher.Constraint("Equal", 36, 37),
    Sketcher.Constraint("Equal", 37, 38),
    Sketcher.Constraint("Equal", 38, 39),
    Sketcher.Constraint("Equal", 39, 40),
    Sketcher.Constraint("Equal", 40, 41),
    Sketcher.Constraint("Equal", 41, 42),
    Sketcher.Constraint("Equal", 42, 43),
    Sketcher.Constraint("Equal", 43, 44),
    Sketcher.Constraint("Equal", 44, 45),
    Sketcher.Constraint("Equal", 45, 46),
    Sketcher.Constraint("Equal", 46, 47),
    Sketcher.Constraint("Vertical", 0, 3, 1, 3),
    Sketcher.Constraint("Vertical", 1, 3, 2, 3),
    Sketcher.Constraint("Vertical", 2, 3, 3, 3),
    Sketcher.Constraint("Vertical", 3, 3, 4, 3),
    Sketcher.Constraint("Vertical", 4, 3, 5, 3),
    Sketcher.Constraint("Vertical", 5, 3, 6, 3),
    Sketcher.Constraint("Vertical", 6, 3, 7, 3),
    Sketcher.Constraint("Vertical", 7, 3, 8, 3),
    Sketcher.Constraint("Vertical", 8, 3, 9, 3),
    Sketcher.Constraint("Vertical", 9, 3, 10, 3),
    Sketcher.Constraint("Vertical", 10, 3, 11, 3),
    Sketcher.Constraint("Vertical", 11, 3, 12, 3),
    Sketcher.Constraint("Vertical", 12, 3, 13, 3),
    Sketcher.Constraint("Vertical", 13, 3, 14, 3),
    Sketcher.Constraint("Vertical", 14, 3, 15, 3),
    Sketcher.Constraint("Vertical", 15, 3, 16, 3),
    Sketcher.Constraint("Vertical", 16, 3, 17, 3),
    Sketcher.Constraint("Vertical", 17, 3, 18, 3),
    Sketcher.Constraint("Vertical", 18, 3, 19, 3),
    Sketcher.Constraint("Vertical", 19, 3, 20, 3),
    Sketcher.Constraint("Vertical", 20, 3, 21, 3),
    Sketcher.Constraint("Vertical", 21, 3, 22, 3),
    Sketcher.Constraint("Vertical", 22, 3, 23, 3),
    Sketcher.Constraint("Vertical", 23, 3, 24, 3),
    Sketcher.Constraint("Vertical", 24, 3, 25, 3),
    Sketcher.Constraint("Vertical", 25, 3, 26, 3),
    Sketcher.Constraint("Vertical", 26, 3, 27, 3),
    Sketcher.Constraint("Vertical", 27, 3, 28, 3),
    Sketcher.Constraint("Vertical", 28, 3, 29, 3),
    Sketcher.Constraint("Vertical", 29, 3, 30, 3),
    Sketcher.Constraint("Vertical", 30, 3, 31, 3),
    Sketcher.Constraint("Vertical", 31, 3, 32, 3),
    Sketcher.Constraint("Vertical", 32, 3, 33, 3),
    Sketcher.Constraint("Vertical", 33, 3, 34, 3),
    Sketcher.Constraint("Vertical", 34, 3, 35, 3),
    Sketcher.Constraint("Vertical", 35, 3, 36, 3),
    Sketcher.Constraint("Vertical", 36, 3, 37, 3),
    Sketcher.Constraint("Vertical", 37, 3, 38, 3),
    Sketcher.Constraint("Vertical", 38, 3, 39, 3),
    Sketcher.Constraint("Vertical", 39, 3, 40, 3),
    Sketcher.Constraint("Vertical", 40, 3, 41, 3),
    Sketcher.Constraint("Vertical", 41, 3, 42, 3),
    Sketcher.Constraint("Vertical", 42, 3, 43, 3),
    Sketcher.Constraint("Vertical", 43, 3, 44, 3),
    Sketcher.Constraint("Vertical", 44, 3, 45, 3),
    Sketcher.Constraint("Vertical", 45, 3, 46, 3),
    Sketcher.Constraint("Vertical", 46, 3, 47, 3),
    Sketcher.Constraint("Diameter", 0, Q("0.375 in")),
    Sketcher.Constraint("DistanceY", 1, 3, 0, 3, Q("1 in")),
    Sketcher.Constraint("DistanceY", 2, 3, 1, 3, Q("1 in")),
    Sketcher.Constraint("DistanceY", 3, 3, 2, 3, Q("1 in")),
    Sketcher.Constraint("DistanceY", 4, 3, 3, 3, Q("1 in")),
    Sketcher.Constraint("DistanceY", 5, 3, 4, 3, Q("1 in")),
    Sketcher.Constraint("DistanceY", 6, 3, 5, 3, Q("1 in")),
    Sketcher.Constraint("DistanceY", 7, 3, 6, 3, Q("1 in")),
    Sketcher.Constraint("DistanceY", 8, 3, 7, 3, Q("1 in")),
    Sketcher.Constraint("DistanceY", 9, 3, 8, 3, Q("1 in")),
    Sketcher.Constraint("DistanceY", 10, 3, 9, 3, Q("1 in")),
    Sketcher.Constraint("DistanceY", 11, 3, 10, 3, Q("1 in")),
    Sketcher.Constraint("DistanceY", 12, 3, 11, 3, Q("1 in")),
    Sketcher.Constraint("DistanceY", 13, 3, 12, 3, Q("1 in")),
    Sketcher.Constraint("DistanceY", 14, 3, 13, 3, Q("1 in")),
    Sketcher.Constraint("DistanceY", 15, 3, 14, 3, Q("1 in")),
    Sketcher.Constraint("DistanceY", 16, 3, 15, 3, Q("1 in")),
    Sketcher.Constraint("DistanceY", 17, 3, 16, 3, Q("1 in")),
    Sketcher.Constraint("DistanceY", 18, 3, 17, 3, Q("1 in")),
    Sketcher.Constraint("DistanceY", 19, 3, 18, 3, Q("1 in")),
    Sketcher.Constraint("DistanceY", 20, 3, 19, 3, Q("1 in")),
    Sketcher.Constraint("DistanceY", 21, 3, 20, 3, Q("1 in")),
    Sketcher.Constraint("DistanceY", 22, 3, 21, 3, Q("1 in")),
    Sketcher.Constraint("DistanceY", 23, 3, 22, 3, Q("1 in")),
    Sketcher.Constraint("DistanceY", 24, 3, 23, 3, Q("1 in")),
    Sketcher.Constraint("DistanceY", 25, 3, 24, 3, Q("1 in")),
    Sketcher.Constraint("DistanceY", 26, 3, 25, 3, Q("1 in")),
    Sketcher.Constraint("DistanceY", 27, 3, 26, 3, Q("1 in")),
    Sketcher.Constraint("DistanceY", 28, 3, 27, 3, Q("1 in")),
    Sketcher.Constraint("DistanceY", 29, 3, 28, 3, Q("1 in")),
    Sketcher.Constraint("DistanceY", 30, 3, 29, 3, Q("1 in")),
    Sketcher.Constraint("DistanceY", 31, 3, 30, 3, Q("1 in")),
    Sketcher.Constraint("DistanceY", 32, 3, 31, 3, Q("1 in")),
    Sketcher.Constraint("DistanceY", 33, 3, 32, 3, Q("1 in")),
    Sketcher.Constraint("DistanceY", 34, 3, 33, 3, Q("1 in")),
    Sketcher.Constraint("DistanceY", 35, 3, 34, 3, Q("1 in")),
    Sketcher.Constraint("DistanceY", 36, 3, 35, 3, Q("1 in")),
    Sketcher.Constraint("DistanceY", 37, 3, 36, 3, Q("1 in")),
    Sketcher.Constraint("DistanceY", 38, 3, 37, 3, Q("1 in")),
    Sketcher.Constraint("DistanceY", 39, 3, 38, 3, Q("1 in")),
    Sketcher.Constraint("DistanceY", 40, 3, 39, 3, Q("1 in")),
    Sketcher.Constraint("DistanceY", 41, 3, 40, 3, Q("1 in")),
    Sketcher.Constraint("DistanceY", 42, 3, 41, 3, Q("1 in")),
    Sketcher.Constraint("DistanceY", 43, 3, 42, 3, Q("1 in")),
    Sketcher.Constraint("DistanceY", 44, 3, 43, 3, Q("1 in")),
    Sketcher.Constraint("DistanceY", 45, 3, 44, 3, Q("1 in")),
    Sketcher.Constraint("DistanceY", 46, 3, 45, 3, Q("1 in")),
    Sketcher.Constraint("DistanceY", 47, 3, 46, 3, Q("1 in")),
    Sketcher.Constraint("DistanceY", -1, 1, 0, 3, Q("47.5 in")),
    Sketcher.Constraint("DistanceX", -1, 1, 0, 3, Q("0.6875 in")),
])
pocket2 = body.newObject("PartDesign::Pocket", "Pocket001")
pocket2.Profile = sketch3
pocket2.Length = Q("0.05 in")
doc.recompute()

fillet = body.newObject("PartDesign::Fillet", "Fillet")
fillet.Base = (pocket2, edges_at(pocket2, [(0, 609.6, 0)]))
fillet.Radius = Q("0.125 in")
doc.recompute()

fillet2 = body.newObject("PartDesign::Fillet", "Fillet001")
fillet2.Base = (fillet, edges_at(fillet, [(1.27, 609.6, -1.27)]))
fillet2.Radius = Q("0.0625 in")

# Sketch on XZ plane
sketch4 = body.newObject("Sketcher::SketchObject", "Sketch003")
sketch4.AttachmentSupport = (doc.getObject("XZ_Plane"), [""])
sketch4.MapMode = "FlatFace"
sketch4.AttachmentOffset = App.Placement(Vector(0, 0, -48 * 25.4), App.Rotation())
sketch4.addGeometry([
    Part.LineSegment(Vector(0, -31.8, 0), Vector(0, -3.2, 0)),  # 0
    Part.ArcOfCircle(Part.Circle(Vector(3.2, -3.2, 0), Vector(0, 0, 1), 3.2), math.radians(90), math.radians(180)),  # 1
    Part.LineSegment(Vector(3.2, 0, 0), Vector(31.8, 0, 0)),  # 2
    Part.LineSegment(Vector(31.8, 0, 0), Vector(31.8, -1.3, 0)),  # 3
    Part.LineSegment(Vector(31.8, -1.3, 0), Vector(2.9, -1.3, 0)),  # 4
    Part.ArcOfCircle(Part.Circle(Vector(2.9, -2.9, 0), Vector(0, 0, 1), 1.6), math.radians(90), math.radians(180)),  # 5
    Part.LineSegment(Vector(1.3, -2.9, 0), Vector(1.3, -31.8, 0)),  # 6
    Part.LineSegment(Vector(1.3, -31.8, 0), Vector(0, -31.8, 0)),  # 7
], False)
sketch4.addConstraint([
    Sketcher.Constraint("Tangent", 0, 2, 1, 2),
    Sketcher.Constraint("Tangent", 1, 1, 2, 1),
    Sketcher.Constraint("Coincident", 2, 2, 3, 1),
    Sketcher.Constraint("Coincident", 3, 2, 4, 1),
    Sketcher.Constraint("Tangent", 4, 2, 5, 1),
    Sketcher.Constraint("Tangent", 5, 2, 6, 1),
    Sketcher.Constraint("Coincident", 6, 2, 7, 1),
    Sketcher.Constraint("Coincident", 7, 2, 0, 1),
    Sketcher.Constraint("Vertical", 0),
    Sketcher.Constraint("Horizontal", 2),
    Sketcher.Constraint("Vertical", 3),
    Sketcher.Constraint("Horizontal", 4),
    Sketcher.Constraint("Vertical", 6),
    Sketcher.Constraint("Horizontal", 7),
    Sketcher.Constraint("PointOnObject", 0, 2, -2),
    Sketcher.Constraint("PointOnObject", 1, 1, -1),
    Sketcher.Constraint("Equal", 2, 0),
    Sketcher.Constraint("Equal", 7, 3),
    Sketcher.Constraint("Radius", 1, Q("0.125 in")),
    Sketcher.Constraint("Radius", 5, Q("0.0625 in")),
    Sketcher.Constraint("DistanceX", 7, 2, 7, 1, Q("0.05 in")),
    Sketcher.Constraint("DistanceY", 6, 2, 4, 2, Q("1.2 in")),
])
pocket3 = body.newObject("PartDesign::Pocket", "Pocket002")
pocket3.Profile = sketch4
pocket3.Length = Q("42 in")
pocket3.Reversed = True

doc.recompute()
